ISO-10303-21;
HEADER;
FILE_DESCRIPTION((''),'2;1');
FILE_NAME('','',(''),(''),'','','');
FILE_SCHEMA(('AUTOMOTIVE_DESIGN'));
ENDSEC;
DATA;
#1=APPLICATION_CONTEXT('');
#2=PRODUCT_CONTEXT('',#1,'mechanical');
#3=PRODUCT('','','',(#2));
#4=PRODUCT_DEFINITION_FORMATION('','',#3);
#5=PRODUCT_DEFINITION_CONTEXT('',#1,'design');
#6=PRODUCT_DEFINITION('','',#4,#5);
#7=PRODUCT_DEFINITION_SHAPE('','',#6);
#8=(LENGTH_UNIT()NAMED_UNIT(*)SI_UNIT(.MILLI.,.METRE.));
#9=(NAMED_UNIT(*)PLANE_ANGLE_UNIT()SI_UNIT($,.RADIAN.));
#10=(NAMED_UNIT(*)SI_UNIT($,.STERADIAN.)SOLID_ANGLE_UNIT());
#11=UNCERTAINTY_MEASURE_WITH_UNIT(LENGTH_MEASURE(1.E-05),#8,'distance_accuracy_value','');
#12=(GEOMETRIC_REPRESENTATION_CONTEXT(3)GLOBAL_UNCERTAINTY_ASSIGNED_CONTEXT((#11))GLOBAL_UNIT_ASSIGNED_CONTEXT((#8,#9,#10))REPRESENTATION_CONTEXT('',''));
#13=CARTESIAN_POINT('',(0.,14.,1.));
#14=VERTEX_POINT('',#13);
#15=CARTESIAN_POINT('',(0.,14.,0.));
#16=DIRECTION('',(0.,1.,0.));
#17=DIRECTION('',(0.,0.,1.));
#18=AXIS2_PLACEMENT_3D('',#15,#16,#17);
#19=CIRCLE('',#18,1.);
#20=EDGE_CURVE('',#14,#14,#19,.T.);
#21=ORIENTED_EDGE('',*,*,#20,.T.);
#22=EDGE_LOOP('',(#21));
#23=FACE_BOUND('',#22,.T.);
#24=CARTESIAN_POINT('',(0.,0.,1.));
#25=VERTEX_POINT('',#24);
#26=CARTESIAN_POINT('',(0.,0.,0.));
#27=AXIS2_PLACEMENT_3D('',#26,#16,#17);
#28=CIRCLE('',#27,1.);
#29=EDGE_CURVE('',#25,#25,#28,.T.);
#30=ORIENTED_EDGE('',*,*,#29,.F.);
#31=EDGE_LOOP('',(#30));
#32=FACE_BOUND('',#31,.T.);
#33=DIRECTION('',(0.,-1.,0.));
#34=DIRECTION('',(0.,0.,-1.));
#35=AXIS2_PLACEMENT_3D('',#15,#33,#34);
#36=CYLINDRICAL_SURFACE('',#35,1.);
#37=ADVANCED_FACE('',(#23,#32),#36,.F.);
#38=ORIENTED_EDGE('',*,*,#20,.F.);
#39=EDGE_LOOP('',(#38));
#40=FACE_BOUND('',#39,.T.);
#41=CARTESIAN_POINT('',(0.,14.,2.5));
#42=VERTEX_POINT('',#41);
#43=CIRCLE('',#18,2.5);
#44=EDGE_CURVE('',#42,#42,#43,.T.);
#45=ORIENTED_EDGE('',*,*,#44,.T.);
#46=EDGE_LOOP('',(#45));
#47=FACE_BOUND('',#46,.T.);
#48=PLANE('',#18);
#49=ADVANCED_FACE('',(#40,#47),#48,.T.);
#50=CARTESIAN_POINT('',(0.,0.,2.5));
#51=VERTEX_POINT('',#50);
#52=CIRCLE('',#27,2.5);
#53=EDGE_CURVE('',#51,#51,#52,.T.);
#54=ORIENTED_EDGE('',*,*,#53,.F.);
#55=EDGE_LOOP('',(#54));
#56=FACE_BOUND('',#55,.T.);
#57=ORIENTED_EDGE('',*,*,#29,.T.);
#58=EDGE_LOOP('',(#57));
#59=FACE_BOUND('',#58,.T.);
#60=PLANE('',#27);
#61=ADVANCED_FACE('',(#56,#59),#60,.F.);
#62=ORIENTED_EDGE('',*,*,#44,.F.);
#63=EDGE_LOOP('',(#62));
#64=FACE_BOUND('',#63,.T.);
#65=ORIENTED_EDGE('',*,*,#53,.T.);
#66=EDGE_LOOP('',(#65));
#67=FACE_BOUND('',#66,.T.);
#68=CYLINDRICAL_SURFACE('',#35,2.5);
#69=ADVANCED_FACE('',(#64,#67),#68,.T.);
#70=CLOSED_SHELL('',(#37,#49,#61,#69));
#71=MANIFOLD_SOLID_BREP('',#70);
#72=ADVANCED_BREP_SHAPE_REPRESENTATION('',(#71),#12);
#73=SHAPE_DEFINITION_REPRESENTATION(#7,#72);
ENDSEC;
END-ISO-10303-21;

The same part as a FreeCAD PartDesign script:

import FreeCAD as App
import Part
import Sketcher

doc = App.newDocument("Part")
body = doc.addObject("PartDesign::Body", "Body")

# Sketch on XZ plane
sketch1 = doc.addObject("Sketcher::SketchObject", "Sketch")
body.addObject(sketch1)
sketch1.AttachmentSupport = (doc.XZ_Plane, [""])
sketch1.MapMode = "FlatFace"
sketch1.addGeometry([
    Part.Circle(App.Vector(0, 0, 0), App.Vector(0, 0, 1), 2.5),
    Part.Circle(App.Vector(0, 0, 0), App.Vector(0, 0, 1), 1),
], False)
sketch1.addConstraint([
    Sketcher.Constraint("Coincident", 0, 3, -1, 1),
    Sketcher.Constraint("Coincident", 1, 3, -1, 1),
    Sketcher.Constraint("Diameter", 0, 5.0),
    Sketcher.Constraint("Diameter", 1, 2.0),
])
pad1 = doc.addObject("PartDesign::Pad", "Pad")
body.addObject(pad1)
pad1.Profile = sketch1
pad1.Length = 14
pad1.Reversed = True

doc.recompute()
